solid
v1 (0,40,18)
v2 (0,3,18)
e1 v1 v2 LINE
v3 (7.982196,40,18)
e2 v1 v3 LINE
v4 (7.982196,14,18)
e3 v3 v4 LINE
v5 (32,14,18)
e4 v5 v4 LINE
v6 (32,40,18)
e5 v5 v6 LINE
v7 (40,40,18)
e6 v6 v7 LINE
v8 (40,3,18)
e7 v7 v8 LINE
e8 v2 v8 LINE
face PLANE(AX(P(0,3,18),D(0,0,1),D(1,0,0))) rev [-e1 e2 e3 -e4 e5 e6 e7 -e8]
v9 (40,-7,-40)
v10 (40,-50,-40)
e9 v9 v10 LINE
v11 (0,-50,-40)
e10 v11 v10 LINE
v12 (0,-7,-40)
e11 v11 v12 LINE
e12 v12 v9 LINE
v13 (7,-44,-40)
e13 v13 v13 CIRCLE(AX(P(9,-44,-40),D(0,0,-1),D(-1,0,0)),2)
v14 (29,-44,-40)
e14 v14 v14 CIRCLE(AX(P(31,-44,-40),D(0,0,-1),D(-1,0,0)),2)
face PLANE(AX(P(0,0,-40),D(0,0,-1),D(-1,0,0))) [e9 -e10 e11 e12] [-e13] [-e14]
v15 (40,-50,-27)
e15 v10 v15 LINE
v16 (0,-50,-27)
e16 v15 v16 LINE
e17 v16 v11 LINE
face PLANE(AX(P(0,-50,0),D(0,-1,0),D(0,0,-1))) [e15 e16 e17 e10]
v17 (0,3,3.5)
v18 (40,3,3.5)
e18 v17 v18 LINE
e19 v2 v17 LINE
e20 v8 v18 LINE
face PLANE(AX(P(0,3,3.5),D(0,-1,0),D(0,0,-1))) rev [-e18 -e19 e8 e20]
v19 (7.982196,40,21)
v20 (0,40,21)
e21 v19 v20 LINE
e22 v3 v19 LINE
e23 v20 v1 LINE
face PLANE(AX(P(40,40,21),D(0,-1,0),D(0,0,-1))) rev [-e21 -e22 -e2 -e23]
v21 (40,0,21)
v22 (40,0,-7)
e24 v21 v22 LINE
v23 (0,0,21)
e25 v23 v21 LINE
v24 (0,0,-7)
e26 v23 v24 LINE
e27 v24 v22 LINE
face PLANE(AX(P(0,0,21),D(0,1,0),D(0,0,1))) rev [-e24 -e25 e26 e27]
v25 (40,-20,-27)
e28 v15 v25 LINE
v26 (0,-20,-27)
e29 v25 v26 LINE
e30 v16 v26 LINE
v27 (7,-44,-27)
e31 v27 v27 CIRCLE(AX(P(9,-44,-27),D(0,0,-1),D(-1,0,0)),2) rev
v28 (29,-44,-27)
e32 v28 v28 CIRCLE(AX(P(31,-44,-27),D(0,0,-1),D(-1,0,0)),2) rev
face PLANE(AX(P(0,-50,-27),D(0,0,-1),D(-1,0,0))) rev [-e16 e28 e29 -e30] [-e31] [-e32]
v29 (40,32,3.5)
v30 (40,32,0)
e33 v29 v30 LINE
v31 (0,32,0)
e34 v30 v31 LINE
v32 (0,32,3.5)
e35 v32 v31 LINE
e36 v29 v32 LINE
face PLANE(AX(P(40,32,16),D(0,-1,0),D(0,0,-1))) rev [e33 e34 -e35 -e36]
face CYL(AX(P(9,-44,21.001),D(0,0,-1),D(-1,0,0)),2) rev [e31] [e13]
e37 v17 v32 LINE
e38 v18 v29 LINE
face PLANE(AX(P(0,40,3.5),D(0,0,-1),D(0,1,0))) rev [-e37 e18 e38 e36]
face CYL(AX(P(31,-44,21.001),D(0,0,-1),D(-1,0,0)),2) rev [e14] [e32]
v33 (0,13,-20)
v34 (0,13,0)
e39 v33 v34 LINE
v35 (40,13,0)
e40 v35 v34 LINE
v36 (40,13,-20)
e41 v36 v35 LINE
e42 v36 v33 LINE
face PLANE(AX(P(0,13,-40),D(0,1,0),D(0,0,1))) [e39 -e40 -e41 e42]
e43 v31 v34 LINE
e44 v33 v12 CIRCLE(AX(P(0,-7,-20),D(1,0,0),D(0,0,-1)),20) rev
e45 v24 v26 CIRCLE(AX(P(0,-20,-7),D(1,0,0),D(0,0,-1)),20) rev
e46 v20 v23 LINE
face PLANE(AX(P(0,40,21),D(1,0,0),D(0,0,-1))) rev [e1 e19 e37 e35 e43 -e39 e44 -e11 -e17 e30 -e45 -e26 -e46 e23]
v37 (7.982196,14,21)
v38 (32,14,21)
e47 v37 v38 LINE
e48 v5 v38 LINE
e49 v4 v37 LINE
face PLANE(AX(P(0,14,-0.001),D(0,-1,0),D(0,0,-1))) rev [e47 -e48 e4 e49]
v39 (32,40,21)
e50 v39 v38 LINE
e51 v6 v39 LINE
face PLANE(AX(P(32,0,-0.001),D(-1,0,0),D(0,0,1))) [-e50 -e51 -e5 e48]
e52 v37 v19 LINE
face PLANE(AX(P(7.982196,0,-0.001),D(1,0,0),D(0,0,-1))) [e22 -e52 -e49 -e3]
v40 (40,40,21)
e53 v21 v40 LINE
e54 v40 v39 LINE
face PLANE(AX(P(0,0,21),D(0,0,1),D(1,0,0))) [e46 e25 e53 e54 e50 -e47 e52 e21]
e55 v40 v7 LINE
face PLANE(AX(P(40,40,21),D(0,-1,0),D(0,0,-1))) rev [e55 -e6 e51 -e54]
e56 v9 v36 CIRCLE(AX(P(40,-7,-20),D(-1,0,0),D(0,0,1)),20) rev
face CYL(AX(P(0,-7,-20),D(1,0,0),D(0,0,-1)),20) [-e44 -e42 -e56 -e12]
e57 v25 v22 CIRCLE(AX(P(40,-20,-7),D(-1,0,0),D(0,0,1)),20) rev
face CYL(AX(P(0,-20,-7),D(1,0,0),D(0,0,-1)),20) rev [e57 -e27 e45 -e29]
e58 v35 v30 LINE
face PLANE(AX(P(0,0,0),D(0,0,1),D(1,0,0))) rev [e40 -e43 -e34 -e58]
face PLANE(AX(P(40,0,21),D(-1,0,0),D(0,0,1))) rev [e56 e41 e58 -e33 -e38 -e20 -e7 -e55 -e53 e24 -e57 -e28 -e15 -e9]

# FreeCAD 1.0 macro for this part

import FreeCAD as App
import Part
import Sketcher
from FreeCAD import Vector


def edges_at(feature, points):
    """Names of the edges that pass closest to the given points."""
    edges = feature.Shape.Edges
    near = lambda p: min(range(len(edges)), key=lambda i: edges[i].distToShape(Part.Vertex(*p))[0])
    return sorted({f"Edge{near(p) + 1}" for p in points})

doc = App.newDocument("Part")
params = doc.addObject("Spreadsheet::Sheet", "Params")
for row, (alias, value) in enumerate([
    ("sketch1_width", "40 mm"),
    ("pad1_length", "21 mm"),
    ("sketch2_width", "37 mm"),
    ("sketch2_height", "14.5 mm"),
    ("sketch3_height", "26 mm"),
    ("sketch4_width", "40 mm"),
    ("sketch4_height", "8 mm"),
    ("pocket3_length", "16 mm"),
    ("sketch5_width", "40 mm"),
    ("sketch5_height", "13 mm"),
    ("pad2_length", "40 mm"),
    ("sketch6_width", "40 mm"),
    ("sketch6_height", "13 mm"),
    ("pad3_length", "50 mm"),
    ("fillet_radius", "20 mm"),
    ("fillet2_radius", "20 mm"),
    ("sketch7_diameter", "4 mm"),
    ("sketch8_diameter", "4 mm"),
], start=1):
    params.set(f"A{row}", alias)
    params.set(f"B{row}", "=" + value)
    params.setAlias(f"B{row}", alias)

body = doc.addObject("PartDesign::Body", "Body")

sketch1 = body.newObject("Sketcher::SketchObject", "Sketch")
sketch1.AttachmentSupport = (doc.getObject("XY_Plane"), [""])
sketch1.MapMode = "FlatFace"
sketch1.addGeometry(Part.LineSegment(Vector(0, 40, 0), Vector(0, 0, 0)), False)
sketch1.addGeometry(Part.LineSegment(Vector(0, 0, 0), Vector(40, 0, 0)), False)
sketch1.addGeometry(Part.LineSegment(Vector(40, 0, 0), Vector(40, 40, 0)), False)
sketch1.addGeometry(Part.LineSegment(Vector(40, 40, 0), Vector(0, 40, 0)), False)
sketch1.addConstraint(Sketcher.Constraint("Coincident", 0, 2, 1, 1))
sketch1.addConstraint(Sketcher.Constraint("Coincident", 1, 2, 2, 1))
sketch1.addConstraint(Sketcher.Constraint("Coincident", 2, 2, 3, 1))
sketch1.addConstraint(Sketcher.Constraint("Coincident", 3, 2, 0, 1))
sketch1.addConstraint(Sketcher.Constraint("Vertical", 0))
sketch1.addConstraint(Sketcher.Constraint("Horizontal", 1))
sketch1.addConstraint(Sketcher.Constraint("Vertical", 2))
sketch1.addConstraint(Sketcher.Constraint("Horizontal", 3))
sketch1.addConstraint(Sketcher.Constraint("Coincident", 0, 2, -1, 1))
sketch1.addConstraint(Sketcher.Constraint("Equal", 3, 0))
sketch1.addConstraint(Sketcher.Constraint("DistanceX", 1, 1, 1, 2, 40.0))
sketch1.setExpression("Constraints[10]", "Params.sketch1_width")
pad1 = body.newObject("PartDesign::Pad", "Pad")
pad1.Profile = sketch1
pad1.setExpression("Length", "Params.pad1_length")

sketch2 = body.newObject("Sketcher::SketchObject", "Sketch001")
sketch2.AttachmentSupport = (doc.getObject("YZ_Plane"), [""])
sketch2.MapMode = "FlatFace"
sketch2.AttachmentOffset = App.Placement(Vector(0, 0, 40), App.Rotation())
sketch2.addGeometry(Part.LineSegment(Vector(40, 18, 0), Vector(3, 18, 0)), False)
sketch2.addGeometry(Part.LineSegment(Vector(3, 18, 0), Vector(3, 4, 0)), False)
sketch2.addGeometry(Part.LineSegment(Vector(3, 4, 0), Vector(40, 4, 0)), False)
sketch2.addGeometry(Part.LineSegment(Vector(40, 4, 0), Vector(40, 18, 0)), False)
sketch2.addConstraint(Sketcher.Constraint("Coincident", 0, 2, 1, 1))
sketch2.addConstraint(Sketcher.Constraint("Coincident", 1, 2, 2, 1))
sketch2.addConstraint(Sketcher.Constraint("Coincident", 2, 2, 3, 1))
sketch2.addConstraint(Sketcher.Constraint("Coincident", 3, 2, 0, 1))
sketch2.addConstraint(Sketcher.Constraint("Horizontal", 0))
sketch2.addConstraint(Sketcher.Constraint("Vertical", 1))
sketch2.addConstraint(Sketcher.Constraint("Horizontal", 2))
sketch2.addConstraint(Sketcher.Constraint("Vertical", 3))
sketch2.addConstraint(Sketcher.Constraint("DistanceX", 0, 2, 0, 1, 37.0))
sketch2.addConstraint(Sketcher.Constraint("DistanceY", 1, 2, 1, 1, 14.5))
sketch2.addConstraint(Sketcher.Constraint("DistanceX", -1, 1, 0, 2, 3.0))
sketch2.addConstraint(Sketcher.Constraint("DistanceY", -1, 1, 0, 2, 18.0))
sketch2.setExpression("Constraints[8]", "Params.sketch2_width")
sketch2.setExpression("Constraints[9]", "Params.sketch2_height")
pocket1 = body.newObject("PartDesign::Pocket", "Pocket")
pocket1.Profile = sketch2
pocket1.Type = "ThroughAll"

sketch3 = body.newObject("Sketcher::SketchObject", "Sketch002")
sketch3.AttachmentSupport = (doc.getObject("XY_Plane"), [""])
sketch3.MapMode = "FlatFace"
sketch3.AttachmentOffset = App.Placement(Vector(0, 0, 21), App.Rotation())
sketch3.addGeometry(Part.LineSegment(Vector(8, 40, 0), Vector(8, 14, 0)), False)
sketch3.addGeometry(Part.LineSegment(Vector(8, 14, 0), Vector(32, 14, 0)), False)
sketch3.addGeometry(Part.LineSegment(Vector(32, 14, 0), Vector(32, 40, 0)), False)
sketch3.addGeometry(Part.LineSegment(Vector(32, 40, 0), Vector(8, 40, 0)), False)
sketch3.addConstraint(Sketcher.Constraint("Coincident", 0, 2, 1, 1))
sketch3.addConstraint(Sketcher.Constraint("Coincident", 1, 2, 2, 1))
sketch3.addConstraint(Sketcher.Constraint("Coincident", 2, 2, 3, 1))
sketch3.addConstraint(Sketcher.Constraint("Coincident", 3, 2, 0, 1))
sketch3.addConstraint(Sketcher.Constraint("Vertical", 0))
sketch3.addConstraint(Sketcher.Constraint("Horizontal", 1))
sketch3.addConstraint(Sketcher.Constraint("Vertical", 2))
sketch3.addConstraint(Sketcher.Constraint("Horizontal", 3))
sketch3.addConstraint(Sketcher.Constraint("DistanceY", 0, 2, 0, 1, 26.0))
sketch3.addConstraint(Sketcher.Constraint("DistanceY", -1, 1, 0, 2, 14.0))
sketch3.addConstraint(Sketcher.Constraint("DistanceX", -1, 1, 1, 2, 32.0))
sketch3.addConstraint(Sketcher.Constraint("DistanceX", 1, 1, 1, 2, 24.017804))
sketch3.setExpression("Constraints[8]", "Params.sketch3_height")
pocket2 = body.newObject("PartDesign::Pocket", "Pocket001")
pocket2.Profile = sketch3
pocket2.Type = "UpToFirst"

sketch4 = body.newObject("Sketcher::SketchObject", "Sketch003")
sketch4.AttachmentSupport = (doc.getObject("XY_Plane"), [""])
sketch4.MapMode = "FlatFace"
sketch4.addGeometry(Part.LineSegment(Vector(40, 40, 0), Vector(40, 32, 0)), False)
sketch4.addGeometry(Part.LineSegment(Vector(40, 32, 0), Vector(0, 32, 0)), False)
sketch4.addGeometry(Part.LineSegment(Vector(0, 32, 0), Vector(0, 40, 0)), False)
sketch4.addGeometry(Part.LineSegment(Vector(0, 40, 0), Vector(40, 40, 0)), False)
sketch4.addConstraint(Sketcher.Constraint("Coincident", 0, 2, 1, 1))
sketch4.addConstraint(Sketcher.Constraint("Coincident", 1, 2, 2, 1))
sketch4.addConstraint(Sketcher.Constraint("Coincident", 2, 2, 3, 1))
sketch4.addConstraint(Sketcher.Constraint("Coincident", 3, 2, 0, 1))
sketch4.addConstraint(Sketcher.Constraint("Vertical", 0))
sketch4.addConstraint(Sketcher.Constraint("Horizontal", 1))
sketch4.addConstraint(Sketcher.Constraint("Vertical", 2))
sketch4.addConstraint(Sketcher.Constraint("Horizontal", 3))
sketch4.addConstraint(Sketcher.Constraint("PointOnObject", 1, 2, -2))
sketch4.addConstraint(Sketcher.Constraint("DistanceX", 1, 2, 1, 1, 40.0))
sketch4.addConstraint(Sketcher.Constraint("DistanceY", 0, 2, 0, 1, 8.0))
sketch4.addConstraint(Sketcher.Constraint("DistanceY", -1, 1, 0, 2, 32.0))
sketch4.setExpression("Constraints[9]", "Params.sketch4_width")
sketch4.setExpression("Constraints[10]", "Params.sketch4_height")
pocket3 = body.newObject("PartDesign::Pocket", "Pocket002")
pocket3.Profile = sketch4
pocket3.setExpression("Length", "Params.pocket3_length")
pocket3.Reversed = True

sketch5 = body.newObject("Sketcher::SketchObject", "Sketch004")
sketch5.AttachmentSupport = (doc.getObject("XY_Plane"), [""])
sketch5.MapMode = "FlatFace"
sketch5.addGeometry(Part.LineSegment(Vector(40, 13, 0), Vector(40, 0, 0)), False)
sketch5.addGeometry(Part.LineSegment(Vector(40, 0, 0), Vector(0, 0, 0)), False)
sketch5.addGeometry(Part.LineSegment(Vector(0, 0, 0), Vector(0, 13, 0)), False)
sketch5.addGeometry(Part.LineSegment(Vector(0, 13, 0), Vector(40, 13, 0)), False)
sketch5.addConstraint(Sketcher.Constraint("Coincident", 0, 2, 1, 1))
sketch5.addConstraint(Sketcher.Constraint("Coincident", 1, 2, 2, 1))
sketch5.addConstraint(Sketcher.Constraint("Coincident", 2, 2, 3, 1))
sketch5.addConstraint(Sketcher.Constraint("Coincident", 3, 2, 0, 1))
sketch5.addConstraint(Sketcher.Constraint("Vertical", 0))
sketch5.addConstraint(Sketcher.Constraint("Horizontal", 1))
sketch5.addConstraint(Sketcher.Constraint("Vertical", 2))
sketch5.addConstraint(Sketcher.Constraint("Horizontal", 3))
sketch5.addConstraint(Sketcher.Constraint("Coincident", 1, 2, -1, 1))
sketch5.addConstraint(Sketcher.Constraint("DistanceX", 1, 2, 1, 1, 40.0))
sketch5.addConstraint(Sketcher.Constraint("DistanceY", 0, 2, 0, 1, 13.0))
sketch5.setExpression("Constraints[9]", "Params.sketch5_width")
sketch5.setExpression("Constraints[10]", "Params.sketch5_height")
pad2 = body.newObject("PartDesign::Pad", "Pad001")
pad2.Profile = sketch5
pad2.setExpression("Length", "Params.pad2_length")
pad2.Reversed = True

sketch6 = body.newObject("Sketcher::SketchObject", "Sketch005")
sketch6.AttachmentSupport = (doc.getObject("XZ_Plane"), [""])
sketch6.MapMode = "FlatFace"
sketch6.addGeometry(Part.LineSegment(Vector(0, -27, 0), Vector(0, -40, 0)), False)
sketch6.addGeometry(Part.LineSegment(Vector(0, -40, 0), Vector(40, -40, 0)), False)
sketch6.addGeometry(Part.LineSegment(Vector(40, -40, 0), Vector(40, -27, 0)), False)
sketch6.addGeometry(Part.LineSegment(Vector(40, -27, 0), Vector(0, -27, 0)), False)
sketch6.addConstraint(Sketcher.Constraint("Coincident", 0, 2, 1, 1))
sketch6.addConstraint(Sketcher.Constraint("Coincident", 1, 2, 2, 1))
sketch6.addConstraint(Sketcher.Constraint("Coincident", 2, 2, 3, 1))
sketch6.addConstraint(Sketcher.Constraint("Coincident", 3, 2, 0, 1))
sketch6.addConstraint(Sketcher.Constraint("Vertical", 0))
sketch6.addConstraint(Sketcher.Constraint("Horizontal", 1))
sketch6.addConstraint(Sketcher.Constraint("Vertical", 2))
sketch6.addConstraint(Sketcher.Constraint("Horizontal", 3))
sketch6.addConstraint(Sketcher.Constraint("PointOnObject", 0, 2, -2))
sketch6.addConstraint(Sketcher.Constraint("DistanceX", 1, 1, 1, 2, 40.0))
sketch6.addConstraint(Sketcher.Constraint("DistanceY", 0, 2, 0, 1, 13.0))
sketch6.addConstraint(Sketcher.Constraint("DistanceY", 0, 2, -1, 1, 40.0))
sketch6.setExpression("Constraints[9]", "Params.sketch6_width")
sketch6.setExpression("Constraints[10]", "Params.sketch6_height")
pad3 = body.newObject("PartDesign::Pad", "Pad002")
pad3.Profile = sketch6
pad3.setExpression("Length", "Params.pad3_length")
doc.recompute()

fillet = body.newObject("PartDesign::Fillet", "Fillet")
fillet.Base = (pad3, edges_at(pad3, [(20, 0, -27)]))
fillet.setExpression("Radius", "Params.fillet_radius")
doc.recompute()

fillet2 = body.newObject("PartDesign::Fillet", "Fillet001")
fillet2.Base = (fillet, edges_at(fillet, [(20, 13, -40)]))
fillet2.setExpression("Radius", "Params.fillet2_radius")

sketch7 = body.newObject("Sketcher::SketchObject", "Sketch006")
sketch7.AttachmentSupport = (doc.getObject("XY_Plane"), [""])
sketch7.MapMode = "FlatFace"
sketch7.AttachmentOffset = App.Placement(Vector(0, 0, -40), App.Rotation())
sketch7.addGeometry(Part.Circle(Vector(31, -44, 0), Vector(0, 0, 1), 2), False)
sketch7.addConstraint(Sketcher.Constraint("Diameter", 0, 4.0))
sketch7.addConstraint(Sketcher.Constraint("DistanceX", -1, 1, 0, 3, 31.0))
sketch7.addConstraint(Sketcher.Constraint("DistanceY", 0, 3, -1, 1, 44.0))
sketch7.setExpression("Constraints[0]", "Params.sketch7_diameter")
pocket4 = body.newObject("PartDesign::Pocket", "Pocket003")
pocket4.Profile = sketch7
pocket4.Type = "UpToFirst"
pocket4.Reversed = True

sketch8 = body.newObject("Sketcher::SketchObject", "Sketch007")
sketch8.AttachmentSupport = (doc.getObject("XY_Plane"), [""])
sketch8.MapMode = "FlatFace"
sketch8.AttachmentOffset = App.Placement(Vector(0, 0, -40), App.Rotation())
sketch8.addGeometry(Part.Circle(Vector(9, -44, 0), Vector(0, 0, 1), 2), False)
sketch8.addConstraint(Sketcher.Constraint("Diameter", 0, 4.0))
sketch8.addConstraint(Sketcher.Constraint("DistanceX", -1, 1, 0, 3, 9.0))
sketch8.addConstraint(Sketcher.Constraint("DistanceY", 0, 3, -1, 1, 44.0))
sketch8.setExpression("Constraints[0]", "Params.sketch8_diameter")
pocket5 = body.newObject("PartDesign::Pocket", "Pocket004")
pocket5.Profile = sketch8
pocket5.Type = "UpToFirst"
pocket5.Reversed = True

doc.recompute()
